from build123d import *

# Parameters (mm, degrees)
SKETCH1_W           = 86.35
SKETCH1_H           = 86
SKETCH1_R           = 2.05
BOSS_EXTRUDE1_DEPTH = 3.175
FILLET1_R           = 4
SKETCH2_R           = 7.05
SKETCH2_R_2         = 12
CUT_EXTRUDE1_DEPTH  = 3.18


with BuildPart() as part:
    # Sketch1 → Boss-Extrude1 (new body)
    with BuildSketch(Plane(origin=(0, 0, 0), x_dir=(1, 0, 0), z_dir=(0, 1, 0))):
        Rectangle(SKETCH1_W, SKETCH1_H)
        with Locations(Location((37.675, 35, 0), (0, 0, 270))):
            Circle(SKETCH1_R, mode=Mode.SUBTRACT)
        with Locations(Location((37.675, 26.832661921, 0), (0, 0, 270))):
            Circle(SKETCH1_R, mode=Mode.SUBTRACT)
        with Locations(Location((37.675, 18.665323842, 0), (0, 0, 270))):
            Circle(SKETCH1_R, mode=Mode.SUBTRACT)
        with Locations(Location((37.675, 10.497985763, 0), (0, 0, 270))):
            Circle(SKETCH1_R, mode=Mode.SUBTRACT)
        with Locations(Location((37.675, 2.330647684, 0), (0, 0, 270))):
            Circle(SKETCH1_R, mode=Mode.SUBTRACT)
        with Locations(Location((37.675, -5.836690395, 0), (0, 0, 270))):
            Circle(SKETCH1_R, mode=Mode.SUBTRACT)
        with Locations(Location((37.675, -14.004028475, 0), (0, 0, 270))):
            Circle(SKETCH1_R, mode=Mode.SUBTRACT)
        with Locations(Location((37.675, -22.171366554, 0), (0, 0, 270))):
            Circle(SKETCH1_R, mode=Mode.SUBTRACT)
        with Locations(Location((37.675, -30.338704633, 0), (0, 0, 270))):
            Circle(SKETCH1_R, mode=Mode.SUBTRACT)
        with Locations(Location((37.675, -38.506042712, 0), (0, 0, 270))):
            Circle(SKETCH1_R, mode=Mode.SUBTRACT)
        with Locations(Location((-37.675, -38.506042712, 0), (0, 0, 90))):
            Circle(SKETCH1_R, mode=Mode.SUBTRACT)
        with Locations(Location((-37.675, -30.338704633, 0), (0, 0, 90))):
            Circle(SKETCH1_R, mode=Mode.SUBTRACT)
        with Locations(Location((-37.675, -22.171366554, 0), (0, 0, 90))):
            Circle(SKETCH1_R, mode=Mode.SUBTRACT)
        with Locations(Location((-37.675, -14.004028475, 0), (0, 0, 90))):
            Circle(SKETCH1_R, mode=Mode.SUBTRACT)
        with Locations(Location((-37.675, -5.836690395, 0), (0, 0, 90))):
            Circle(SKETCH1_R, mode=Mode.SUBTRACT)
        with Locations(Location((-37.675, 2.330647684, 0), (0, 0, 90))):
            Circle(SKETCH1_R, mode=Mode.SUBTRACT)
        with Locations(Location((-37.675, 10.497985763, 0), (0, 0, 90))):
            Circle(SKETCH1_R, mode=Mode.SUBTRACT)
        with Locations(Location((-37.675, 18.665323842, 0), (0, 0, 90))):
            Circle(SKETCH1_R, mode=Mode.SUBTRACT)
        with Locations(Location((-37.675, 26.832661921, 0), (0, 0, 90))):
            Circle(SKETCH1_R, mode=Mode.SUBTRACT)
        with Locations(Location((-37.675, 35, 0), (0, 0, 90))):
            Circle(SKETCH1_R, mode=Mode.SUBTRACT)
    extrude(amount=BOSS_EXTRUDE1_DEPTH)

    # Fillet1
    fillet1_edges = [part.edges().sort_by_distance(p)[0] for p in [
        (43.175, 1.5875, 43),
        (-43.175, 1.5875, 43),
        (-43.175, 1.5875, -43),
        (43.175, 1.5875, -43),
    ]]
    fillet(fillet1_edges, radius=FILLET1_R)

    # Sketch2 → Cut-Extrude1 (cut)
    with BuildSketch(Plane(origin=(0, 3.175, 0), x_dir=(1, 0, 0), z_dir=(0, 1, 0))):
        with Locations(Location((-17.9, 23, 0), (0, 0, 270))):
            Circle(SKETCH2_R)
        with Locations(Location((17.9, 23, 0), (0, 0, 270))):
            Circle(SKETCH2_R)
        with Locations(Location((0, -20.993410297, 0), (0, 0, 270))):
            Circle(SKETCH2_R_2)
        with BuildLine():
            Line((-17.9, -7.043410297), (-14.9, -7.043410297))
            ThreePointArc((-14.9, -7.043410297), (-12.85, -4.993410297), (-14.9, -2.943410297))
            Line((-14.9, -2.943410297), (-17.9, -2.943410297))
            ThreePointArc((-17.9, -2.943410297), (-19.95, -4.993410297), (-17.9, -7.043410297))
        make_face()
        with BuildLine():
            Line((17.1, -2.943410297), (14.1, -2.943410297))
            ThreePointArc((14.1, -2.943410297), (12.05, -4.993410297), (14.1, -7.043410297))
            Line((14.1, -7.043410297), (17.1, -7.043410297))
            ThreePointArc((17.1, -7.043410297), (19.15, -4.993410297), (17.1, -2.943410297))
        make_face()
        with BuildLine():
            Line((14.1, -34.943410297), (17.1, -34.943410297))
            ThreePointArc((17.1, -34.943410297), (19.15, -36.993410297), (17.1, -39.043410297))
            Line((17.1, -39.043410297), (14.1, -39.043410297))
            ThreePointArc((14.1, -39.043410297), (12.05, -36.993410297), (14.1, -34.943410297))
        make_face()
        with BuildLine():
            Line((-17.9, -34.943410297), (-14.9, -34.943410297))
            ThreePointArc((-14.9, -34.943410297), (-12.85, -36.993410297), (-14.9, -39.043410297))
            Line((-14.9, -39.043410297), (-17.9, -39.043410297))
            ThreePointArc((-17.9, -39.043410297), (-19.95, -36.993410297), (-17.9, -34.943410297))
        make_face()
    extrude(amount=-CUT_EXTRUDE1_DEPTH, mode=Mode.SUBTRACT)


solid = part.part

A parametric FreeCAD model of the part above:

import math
import FreeCAD as App
import Part
import Sketcher
from FreeCAD import Vector
Q = App.Units.Quantity


def edges_at(feature, points):
    """Names of the edges that pass closest to the given points."""
    edges = feature.Shape.Edges
    near = lambda p: min(range(len(edges)), key=lambda i: edges[i].distToShape(Part.Vertex(*p))[0])
    return sorted({f"Edge{near(p) + 1}" for p in points})


def add_polygon(sketch, points):
    """Adds a closed chain of lines whose ends are joined by coincident constraints."""
    first, n = sketch.GeometryCount, len(points)
    for a, b in zip(points, points[1:] + points[:1]):
        sketch.addGeometry(Part.LineSegment(App.Vector(*a, 0), App.Vector(*b, 0)), False)
    for i in range(n):
        sketch.addConstraint(Sketcher.Constraint("Coincident", first + i, 2, first + (i + 1) % n, 1))

doc = App.newDocument("Part")
body = doc.addObject("PartDesign::Body", "Body")

# Sketch on XZ plane
sketch1 = body.newObject("Sketcher::SketchObject", "Sketch")
sketch1.AttachmentSupport = (doc.getObject("XZ_Plane"), [""])
sketch1.MapMode = "FlatFace"
add_polygon(sketch1, [(-43.2, -43), (-43.2, 43), (43.2, 43), (43.2, -43)])  # lines 0-3
sketch1.addGeometry(Part.Circle(Vector(-37.7, 38.5, 0), Vector(0, 0, 1), 2), False)  # 4
sketch1.addGeometry(Part.Circle(Vector(-37.7, 30.3, 0), Vector(0, 0, 1), 2), False)  # 5
sketch1.addGeometry(Part.Circle(Vector(-37.7, 22.2, 0), Vector(0, 0, 1), 2), False)  # 6
sketch1.addGeometry(Part.Circle(Vector(-37.7, 14, 0), Vector(0, 0, 1), 2), False)  # 7
sketch1.addGeometry(Part.Circle(Vector(-37.7, 5.8, 0), Vector(0, 0, 1), 2), False)  # 8
sketch1.addGeometry(Part.Circle(Vector(37.7, 38.5, 0), Vector(0, 0, 1), 2), False)  # 9
sketch1.addGeometry(Part.Circle(Vector(37.7, 30.3, 0), Vector(0, 0, 1), 2), False)  # 10
sketch1.addGeometry(Part.Circle(Vector(37.7, 22.2, 0), Vector(0, 0, 1), 2), False)  # 11
sketch1.addGeometry(Part.Circle(Vector(37.7, 14, 0), Vector(0, 0, 1), 2), False)  # 12
sketch1.addGeometry(Part.Circle(Vector(37.7, 5.8, 0), Vector(0, 0, 1), 2), False)  # 13
sketch1.addGeometry(Part.Circle(Vector(-37.7, -2.3, 0), Vector(0, 0, 1), 2), False)  # 14
sketch1.addGeometry(Part.Circle(Vector(-37.7, -10.5, 0), Vector(0, 0, 1), 2), False)  # 15
sketch1.addGeometry(Part.Circle(Vector(-37.7, -18.7, 0), Vector(0, 0, 1), 2), False)  # 16
sketch1.addGeometry(Part.Circle(Vector(-37.7, -26.8, 0), Vector(0, 0, 1), 2), False)  # 17
sketch1.addGeometry(Part.Circle(Vector(-37.7, -35, 0), Vector(0, 0, 1), 2), False)  # 18
sketch1.addGeometry(Part.Circle(Vector(37.7, -2.3, 0), Vector(0, 0, 1), 2), False)  # 19
sketch1.addGeometry(Part.Circle(Vector(37.7, -10.5, 0), Vector(0, 0, 1), 2), False)  # 20
sketch1.addGeometry(Part.Circle(Vector(37.7, -18.7, 0), Vector(0, 0, 1), 2), False)  # 21
sketch1.addGeometry(Part.Circle(Vector(37.7, -26.8, 0), Vector(0, 0, 1), 2), False)  # 22
sketch1.addGeometry(Part.Circle(Vector(37.7, -35, 0), Vector(0, 0, 1), 2), False)  # 23
sketch1.addConstraint([
    Sketcher.Constraint("Vertical", 0),
    Sketcher.Constraint("Horizontal", 1),
    Sketcher.Constraint("Vertical", 2),
    Sketcher.Constraint("Horizontal", 3),
    Sketcher.Constraint("Equal", 4, 5),
    Sketcher.Constraint("Equal", 5, 6),
    Sketcher.Constraint("Equal", 6, 7),
    Sketcher.Constraint("Equal", 7, 8),
    Sketcher.Constraint("Equal", 8, 9),
    Sketcher.Constraint("Equal", 9, 10),
    Sketcher.Constraint("Equal", 10, 11),
    Sketcher.Constraint("Equal", 11, 12),
    Sketcher.Constraint("Equal", 12, 13),
    Sketcher.Constraint("Equal", 13, 14),
    Sketcher.Constraint("Equal", 14, 15),
    Sketcher.Constraint("Equal", 15, 16),
    Sketcher.Constraint("Equal", 16, 17),
    Sketcher.Constraint("Equal", 17, 18),
    Sketcher.Constraint("Equal", 18, 19),
    Sketcher.Constraint("Equal", 19, 20),
    Sketcher.Constraint("Equal", 20, 21),
    Sketcher.Constraint("Equal", 21, 22),
    Sketcher.Constraint("Equal", 22, 23),
    Sketcher.Constraint("Symmetric", 0, 2, 2, 2, -1, 1),
    Sketcher.Constraint("Symmetric", 4, 3, 9, 3, -2),
    Sketcher.Constraint("Symmetric", 5, 3, 10, 3, -2),
    Sketcher.Constraint("Symmetric", 6, 3, 11, 3, -2),
    Sketcher.Constraint("Symmetric", 7, 3, 12, 3, -2),
    Sketcher.Constraint("Symmetric", 8, 3, 13, 3, -2),
    Sketcher.Constraint("Symmetric", 14, 3, 19, 3, -2),
    Sketcher.Constraint("Symmetric", 15, 3, 20, 3, -2),
    Sketcher.Constraint("Symmetric", 16, 3, 21, 3, -2),
    Sketcher.Constraint("Symmetric", 17, 3, 22, 3, -2),
    Sketcher.Constraint("Symmetric", 18, 3, 23, 3, -2),
    Sketcher.Constraint("Vertical", 4, 3, 5, 3),
    Sketcher.Constraint("Vertical", 5, 3, 6, 3),
    Sketcher.Constraint("Vertical", 6, 3, 7, 3),
    Sketcher.Constraint("Vertical", 7, 3, 8, 3),
    Sketcher.Constraint("Vertical", 8, 3, 14, 3),
    Sketcher.Constraint("Vertical", 14, 3, 15, 3),
    Sketcher.Constraint("Vertical", 15, 3, 16, 3),
    Sketcher.Constraint("Vertical", 16, 3, 17, 3),
    Sketcher.Constraint("Vertical", 17, 3, 18, 3),
    Sketcher.Constraint("Diameter", 4, Q("4.1 mm")),
    Sketcher.Constraint("DistanceY", 0, 1, 0, 2, Q("86 mm")),
    Sketcher.Constraint("DistanceY", 18, 3, -1, 1, Q("35 mm")),
    Sketcher.Constraint("DistanceX", 1, 1, 1, 2, Q("86.35 mm")),
    Sketcher.Constraint("DistanceX", 0, 2, 4, 3, Q("5.5 mm")),
    Sketcher.Constraint("DistanceY", -1, 1, 7, 3, Q("14.004028 mm")),
    Sketcher.Constraint("DistanceY", -1, 1, 8, 3, Q("5.83669 mm")),
    Sketcher.Constraint("DistanceY", 17, 3, -1, 1, Q("26.832662 mm")),
    Sketcher.Constraint("DistanceY", 5, 3, 4, 3, Q("8.167338 mm")),
    Sketcher.Constraint("DistanceY", 6, 3, 5, 3, Q("8.167338 mm")),
    Sketcher.Constraint("DistanceY", 7, 3, 6, 3, Q("8.167338 mm")),
    Sketcher.Constraint("DistanceY", 14, 3, 8, 3, Q("8.167338 mm")),
    Sketcher.Constraint("DistanceY", 15, 3, 14, 3, Q("8.167338 mm")),
    Sketcher.Constraint("DistanceY", 16, 3, 15, 3, Q("8.167338 mm")),
])
pad1 = body.newObject("PartDesign::Pad", "Pad")
pad1.Profile = sketch1
pad1.Length = 3.175
pad1.Reversed = True
doc.recompute()

fillet = body.newObject("PartDesign::Fillet", "Fillet")
fillet.Base = (pad1, edges_at(pad1, [
    (43.175, 1.587, 43),
    (-43.175, 1.587, 43),
    (-43.175, 1.587, -43),
    (43.175, 1.587, -43),
]))
fillet.Radius = 4

# Sketch on XZ plane
sketch2 = body.newObject("Sketcher::SketchObject", "Sketch001")
sketch2.AttachmentSupport = (doc.getObject("XZ_Plane"), [""])
sketch2.MapMode = "FlatFace"
sketch2.AttachmentOffset = App.Placement(Vector(0, 0, -3.175), App.Rotation())
sketch2.addGeometry([
    Part.Circle(Vector(-17.9, -23, 0), Vector(0, 0, 1), 7),  # 0
    Part.Circle(Vector(17.9, -23, 0), Vector(0, 0, 1), 7),  # 1
    Part.Circle(Vector(0, 21, 0), Vector(0, 0, 1), 12),  # 2
    Part.LineSegment(Vector(-17.9, 7, 0), Vector(-14.9, 7, 0)),  # 3
    Part.ArcOfCircle(Part.Circle(Vector(-14.9, 5, 0), Vector(0, 0, 1), 2), math.radians(-90), math.radians(90)),  # 4
    Part.LineSegment(Vector(-14.9, 2.9, 0), Vector(-17.9, 2.9, 0)),  # 5
    Part.ArcOfCircle(Part.Circle(Vector(-17.9, 5, 0), Vector(0, 0, 1), 2), math.radians(90), math.radians(270)),  # 6
    Part.LineSegment(Vector(17.1, 2.9, 0), Vector(14.1, 2.9, 0)),  # 7
    Part.ArcOfCircle(Part.Circle(Vector(14.1, 5, 0), Vector(0, 0, 1), 2), math.radians(90), math.radians(270)),  # 8
    Part.LineSegment(Vector(14.1, 7, 0), Vector(17.1, 7, 0)),  # 9
    Part.ArcOfCircle(Part.Circle(Vector(17.1, 5, 0), Vector(0, 0, 1), 2), math.radians(-90), math.radians(90)),  # 10
    Part.LineSegment(Vector(17.1, 34.9, 0), Vector(14.1, 34.9, 0)),  # 11
    Part.ArcOfCircle(Part.Circle(Vector(14.1, 37, 0), Vector(0, 0, 1), 2), math.radians(90), math.radians(270)),  # 12
    Part.LineSegment(Vector(14.1, 39, 0), Vector(17.1, 39, 0)),  # 13
    Part.ArcOfCircle(Part.Circle(Vector(17.1, 37, 0), Vector(0, 0, 1), 2), math.radians(-90), math.radians(90)),  # 14
    Part.LineSegment(Vector(-14.9, 34.9, 0), Vector(-17.9, 34.9, 0)),  # 15
    Part.ArcOfCircle(Part.Circle(Vector(-17.9, 37, 0), Vector(0, 0, 1), 2), math.radians(90), math.radians(270)),  # 16
    Part.LineSegment(Vector(-17.9, 39, 0), Vector(-14.9, 39, 0)),  # 17
    Part.ArcOfCircle(Part.Circle(Vector(-14.9, 37, 0), Vector(0, 0, 1), 2), math.radians(-90), math.radians(90)),  # 18
], False)
sketch2.addConstraint([
    Sketcher.Constraint("Tangent", 3, 2, 4, 2),
    Sketcher.Constraint("Tangent", 4, 1, 5, 1),
    Sketcher.Constraint("Tangent", 5, 2, 6, 2),
    Sketcher.Constraint("Tangent", 6, 1, 3, 1),
    Sketcher.Constraint("Tangent", 7, 2, 8, 2),
    Sketcher.Constraint("Tangent", 8, 1, 9, 1),
    Sketcher.Constraint("Tangent", 9, 2, 10, 2),
    Sketcher.Constraint("Tangent", 10, 1, 7, 1),
    Sketcher.Constraint("Tangent", 11, 2, 12, 2),
    Sketcher.Constraint("Tangent", 12, 1, 13, 1),
    Sketcher.Constraint("Tangent", 13, 2, 14, 2),
    Sketcher.Constraint("Tangent", 14, 1, 11, 1),
    Sketcher.Constraint("Tangent", 15, 2, 16, 2),
    Sketcher.Constraint("Tangent", 16, 1, 17, 1),
    Sketcher.Constraint("Tangent", 17, 2, 18, 2),
    Sketcher.Constraint("Tangent", 18, 1, 15, 1),
    Sketcher.Constraint("Horizontal", 3),
    Sketcher.Constraint("Horizontal", 5),
    Sketcher.Constraint("Horizontal", 7),
    Sketcher.Constraint("Horizontal", 9),
    Sketcher.Constraint("Horizontal", 11),
    Sketcher.Constraint("Horizontal", 13),
    Sketcher.Constraint("Horizontal", 15),
    Sketcher.Constraint("Horizontal", 17),
    Sketcher.Constraint("Equal", 0, 1),
    Sketcher.Constraint("Equal", 6, 8),
    Sketcher.Constraint("Equal", 10, 12),
    Sketcher.Constraint("Equal", 14, 16),
    Sketcher.Constraint("Symmetric", 0, 3, 1, 3, -2),
    Sketcher.Constraint("PointOnObject", 2, 3, -2),
    Sketcher.Constraint("Horizontal", 6, 3, 8, 3),
    Sketcher.Constraint("Horizontal", 14, 3, 16, 3),
    Sketcher.Constraint("Vertical", 0, 3, 6, 3),
    Sketcher.Constraint("Vertical", 8, 3, 12, 3),
    Sketcher.Constraint("Vertical", 10, 3, 14, 3),
    Sketcher.Constraint("Vertical", 6, 3, 16, 3),
    Sketcher.Constraint("Vertical", 4, 3, 18, 3),
    Sketcher.Constraint("Equal", 5, 7),
    Sketcher.Constraint("Diameter", 2, Q("24 mm")),
    Sketcher.Constraint("Diameter", 0, Q("14.1 mm")),
    Sketcher.Constraint("DistanceX", 3, 1, 3, 2, Q("3 mm")),
    Sketcher.Constraint("Radius", 4, Q("2.05 mm")),
    Sketcher.Constraint("DistanceY", 0, 3, -1, 1, Q("23 mm")),
    Sketcher.Constraint("DistanceY", 4, 3, 2, 3, Q("16 mm")),
    Sketcher.Constraint("DistanceX", 4, 3, 8, 3, Q("29 mm")),
    Sketcher.Constraint("DistanceY", 2, 3, 12, 3, Q("16 mm")),
    Sketcher.Constraint("DistanceX", 0, 3, -1, 1, Q("17.9 mm")),
    Sketcher.Constraint("DistanceY", -1, 1, 2, 3, Q("20.99341 mm")),
])
pocket1 = body.newObject("PartDesign::Pocket", "Pocket")
pocket1.Profile = sketch2
pocket1.Length = 3.18
pocket1.Reversed = True

doc.recompute()
